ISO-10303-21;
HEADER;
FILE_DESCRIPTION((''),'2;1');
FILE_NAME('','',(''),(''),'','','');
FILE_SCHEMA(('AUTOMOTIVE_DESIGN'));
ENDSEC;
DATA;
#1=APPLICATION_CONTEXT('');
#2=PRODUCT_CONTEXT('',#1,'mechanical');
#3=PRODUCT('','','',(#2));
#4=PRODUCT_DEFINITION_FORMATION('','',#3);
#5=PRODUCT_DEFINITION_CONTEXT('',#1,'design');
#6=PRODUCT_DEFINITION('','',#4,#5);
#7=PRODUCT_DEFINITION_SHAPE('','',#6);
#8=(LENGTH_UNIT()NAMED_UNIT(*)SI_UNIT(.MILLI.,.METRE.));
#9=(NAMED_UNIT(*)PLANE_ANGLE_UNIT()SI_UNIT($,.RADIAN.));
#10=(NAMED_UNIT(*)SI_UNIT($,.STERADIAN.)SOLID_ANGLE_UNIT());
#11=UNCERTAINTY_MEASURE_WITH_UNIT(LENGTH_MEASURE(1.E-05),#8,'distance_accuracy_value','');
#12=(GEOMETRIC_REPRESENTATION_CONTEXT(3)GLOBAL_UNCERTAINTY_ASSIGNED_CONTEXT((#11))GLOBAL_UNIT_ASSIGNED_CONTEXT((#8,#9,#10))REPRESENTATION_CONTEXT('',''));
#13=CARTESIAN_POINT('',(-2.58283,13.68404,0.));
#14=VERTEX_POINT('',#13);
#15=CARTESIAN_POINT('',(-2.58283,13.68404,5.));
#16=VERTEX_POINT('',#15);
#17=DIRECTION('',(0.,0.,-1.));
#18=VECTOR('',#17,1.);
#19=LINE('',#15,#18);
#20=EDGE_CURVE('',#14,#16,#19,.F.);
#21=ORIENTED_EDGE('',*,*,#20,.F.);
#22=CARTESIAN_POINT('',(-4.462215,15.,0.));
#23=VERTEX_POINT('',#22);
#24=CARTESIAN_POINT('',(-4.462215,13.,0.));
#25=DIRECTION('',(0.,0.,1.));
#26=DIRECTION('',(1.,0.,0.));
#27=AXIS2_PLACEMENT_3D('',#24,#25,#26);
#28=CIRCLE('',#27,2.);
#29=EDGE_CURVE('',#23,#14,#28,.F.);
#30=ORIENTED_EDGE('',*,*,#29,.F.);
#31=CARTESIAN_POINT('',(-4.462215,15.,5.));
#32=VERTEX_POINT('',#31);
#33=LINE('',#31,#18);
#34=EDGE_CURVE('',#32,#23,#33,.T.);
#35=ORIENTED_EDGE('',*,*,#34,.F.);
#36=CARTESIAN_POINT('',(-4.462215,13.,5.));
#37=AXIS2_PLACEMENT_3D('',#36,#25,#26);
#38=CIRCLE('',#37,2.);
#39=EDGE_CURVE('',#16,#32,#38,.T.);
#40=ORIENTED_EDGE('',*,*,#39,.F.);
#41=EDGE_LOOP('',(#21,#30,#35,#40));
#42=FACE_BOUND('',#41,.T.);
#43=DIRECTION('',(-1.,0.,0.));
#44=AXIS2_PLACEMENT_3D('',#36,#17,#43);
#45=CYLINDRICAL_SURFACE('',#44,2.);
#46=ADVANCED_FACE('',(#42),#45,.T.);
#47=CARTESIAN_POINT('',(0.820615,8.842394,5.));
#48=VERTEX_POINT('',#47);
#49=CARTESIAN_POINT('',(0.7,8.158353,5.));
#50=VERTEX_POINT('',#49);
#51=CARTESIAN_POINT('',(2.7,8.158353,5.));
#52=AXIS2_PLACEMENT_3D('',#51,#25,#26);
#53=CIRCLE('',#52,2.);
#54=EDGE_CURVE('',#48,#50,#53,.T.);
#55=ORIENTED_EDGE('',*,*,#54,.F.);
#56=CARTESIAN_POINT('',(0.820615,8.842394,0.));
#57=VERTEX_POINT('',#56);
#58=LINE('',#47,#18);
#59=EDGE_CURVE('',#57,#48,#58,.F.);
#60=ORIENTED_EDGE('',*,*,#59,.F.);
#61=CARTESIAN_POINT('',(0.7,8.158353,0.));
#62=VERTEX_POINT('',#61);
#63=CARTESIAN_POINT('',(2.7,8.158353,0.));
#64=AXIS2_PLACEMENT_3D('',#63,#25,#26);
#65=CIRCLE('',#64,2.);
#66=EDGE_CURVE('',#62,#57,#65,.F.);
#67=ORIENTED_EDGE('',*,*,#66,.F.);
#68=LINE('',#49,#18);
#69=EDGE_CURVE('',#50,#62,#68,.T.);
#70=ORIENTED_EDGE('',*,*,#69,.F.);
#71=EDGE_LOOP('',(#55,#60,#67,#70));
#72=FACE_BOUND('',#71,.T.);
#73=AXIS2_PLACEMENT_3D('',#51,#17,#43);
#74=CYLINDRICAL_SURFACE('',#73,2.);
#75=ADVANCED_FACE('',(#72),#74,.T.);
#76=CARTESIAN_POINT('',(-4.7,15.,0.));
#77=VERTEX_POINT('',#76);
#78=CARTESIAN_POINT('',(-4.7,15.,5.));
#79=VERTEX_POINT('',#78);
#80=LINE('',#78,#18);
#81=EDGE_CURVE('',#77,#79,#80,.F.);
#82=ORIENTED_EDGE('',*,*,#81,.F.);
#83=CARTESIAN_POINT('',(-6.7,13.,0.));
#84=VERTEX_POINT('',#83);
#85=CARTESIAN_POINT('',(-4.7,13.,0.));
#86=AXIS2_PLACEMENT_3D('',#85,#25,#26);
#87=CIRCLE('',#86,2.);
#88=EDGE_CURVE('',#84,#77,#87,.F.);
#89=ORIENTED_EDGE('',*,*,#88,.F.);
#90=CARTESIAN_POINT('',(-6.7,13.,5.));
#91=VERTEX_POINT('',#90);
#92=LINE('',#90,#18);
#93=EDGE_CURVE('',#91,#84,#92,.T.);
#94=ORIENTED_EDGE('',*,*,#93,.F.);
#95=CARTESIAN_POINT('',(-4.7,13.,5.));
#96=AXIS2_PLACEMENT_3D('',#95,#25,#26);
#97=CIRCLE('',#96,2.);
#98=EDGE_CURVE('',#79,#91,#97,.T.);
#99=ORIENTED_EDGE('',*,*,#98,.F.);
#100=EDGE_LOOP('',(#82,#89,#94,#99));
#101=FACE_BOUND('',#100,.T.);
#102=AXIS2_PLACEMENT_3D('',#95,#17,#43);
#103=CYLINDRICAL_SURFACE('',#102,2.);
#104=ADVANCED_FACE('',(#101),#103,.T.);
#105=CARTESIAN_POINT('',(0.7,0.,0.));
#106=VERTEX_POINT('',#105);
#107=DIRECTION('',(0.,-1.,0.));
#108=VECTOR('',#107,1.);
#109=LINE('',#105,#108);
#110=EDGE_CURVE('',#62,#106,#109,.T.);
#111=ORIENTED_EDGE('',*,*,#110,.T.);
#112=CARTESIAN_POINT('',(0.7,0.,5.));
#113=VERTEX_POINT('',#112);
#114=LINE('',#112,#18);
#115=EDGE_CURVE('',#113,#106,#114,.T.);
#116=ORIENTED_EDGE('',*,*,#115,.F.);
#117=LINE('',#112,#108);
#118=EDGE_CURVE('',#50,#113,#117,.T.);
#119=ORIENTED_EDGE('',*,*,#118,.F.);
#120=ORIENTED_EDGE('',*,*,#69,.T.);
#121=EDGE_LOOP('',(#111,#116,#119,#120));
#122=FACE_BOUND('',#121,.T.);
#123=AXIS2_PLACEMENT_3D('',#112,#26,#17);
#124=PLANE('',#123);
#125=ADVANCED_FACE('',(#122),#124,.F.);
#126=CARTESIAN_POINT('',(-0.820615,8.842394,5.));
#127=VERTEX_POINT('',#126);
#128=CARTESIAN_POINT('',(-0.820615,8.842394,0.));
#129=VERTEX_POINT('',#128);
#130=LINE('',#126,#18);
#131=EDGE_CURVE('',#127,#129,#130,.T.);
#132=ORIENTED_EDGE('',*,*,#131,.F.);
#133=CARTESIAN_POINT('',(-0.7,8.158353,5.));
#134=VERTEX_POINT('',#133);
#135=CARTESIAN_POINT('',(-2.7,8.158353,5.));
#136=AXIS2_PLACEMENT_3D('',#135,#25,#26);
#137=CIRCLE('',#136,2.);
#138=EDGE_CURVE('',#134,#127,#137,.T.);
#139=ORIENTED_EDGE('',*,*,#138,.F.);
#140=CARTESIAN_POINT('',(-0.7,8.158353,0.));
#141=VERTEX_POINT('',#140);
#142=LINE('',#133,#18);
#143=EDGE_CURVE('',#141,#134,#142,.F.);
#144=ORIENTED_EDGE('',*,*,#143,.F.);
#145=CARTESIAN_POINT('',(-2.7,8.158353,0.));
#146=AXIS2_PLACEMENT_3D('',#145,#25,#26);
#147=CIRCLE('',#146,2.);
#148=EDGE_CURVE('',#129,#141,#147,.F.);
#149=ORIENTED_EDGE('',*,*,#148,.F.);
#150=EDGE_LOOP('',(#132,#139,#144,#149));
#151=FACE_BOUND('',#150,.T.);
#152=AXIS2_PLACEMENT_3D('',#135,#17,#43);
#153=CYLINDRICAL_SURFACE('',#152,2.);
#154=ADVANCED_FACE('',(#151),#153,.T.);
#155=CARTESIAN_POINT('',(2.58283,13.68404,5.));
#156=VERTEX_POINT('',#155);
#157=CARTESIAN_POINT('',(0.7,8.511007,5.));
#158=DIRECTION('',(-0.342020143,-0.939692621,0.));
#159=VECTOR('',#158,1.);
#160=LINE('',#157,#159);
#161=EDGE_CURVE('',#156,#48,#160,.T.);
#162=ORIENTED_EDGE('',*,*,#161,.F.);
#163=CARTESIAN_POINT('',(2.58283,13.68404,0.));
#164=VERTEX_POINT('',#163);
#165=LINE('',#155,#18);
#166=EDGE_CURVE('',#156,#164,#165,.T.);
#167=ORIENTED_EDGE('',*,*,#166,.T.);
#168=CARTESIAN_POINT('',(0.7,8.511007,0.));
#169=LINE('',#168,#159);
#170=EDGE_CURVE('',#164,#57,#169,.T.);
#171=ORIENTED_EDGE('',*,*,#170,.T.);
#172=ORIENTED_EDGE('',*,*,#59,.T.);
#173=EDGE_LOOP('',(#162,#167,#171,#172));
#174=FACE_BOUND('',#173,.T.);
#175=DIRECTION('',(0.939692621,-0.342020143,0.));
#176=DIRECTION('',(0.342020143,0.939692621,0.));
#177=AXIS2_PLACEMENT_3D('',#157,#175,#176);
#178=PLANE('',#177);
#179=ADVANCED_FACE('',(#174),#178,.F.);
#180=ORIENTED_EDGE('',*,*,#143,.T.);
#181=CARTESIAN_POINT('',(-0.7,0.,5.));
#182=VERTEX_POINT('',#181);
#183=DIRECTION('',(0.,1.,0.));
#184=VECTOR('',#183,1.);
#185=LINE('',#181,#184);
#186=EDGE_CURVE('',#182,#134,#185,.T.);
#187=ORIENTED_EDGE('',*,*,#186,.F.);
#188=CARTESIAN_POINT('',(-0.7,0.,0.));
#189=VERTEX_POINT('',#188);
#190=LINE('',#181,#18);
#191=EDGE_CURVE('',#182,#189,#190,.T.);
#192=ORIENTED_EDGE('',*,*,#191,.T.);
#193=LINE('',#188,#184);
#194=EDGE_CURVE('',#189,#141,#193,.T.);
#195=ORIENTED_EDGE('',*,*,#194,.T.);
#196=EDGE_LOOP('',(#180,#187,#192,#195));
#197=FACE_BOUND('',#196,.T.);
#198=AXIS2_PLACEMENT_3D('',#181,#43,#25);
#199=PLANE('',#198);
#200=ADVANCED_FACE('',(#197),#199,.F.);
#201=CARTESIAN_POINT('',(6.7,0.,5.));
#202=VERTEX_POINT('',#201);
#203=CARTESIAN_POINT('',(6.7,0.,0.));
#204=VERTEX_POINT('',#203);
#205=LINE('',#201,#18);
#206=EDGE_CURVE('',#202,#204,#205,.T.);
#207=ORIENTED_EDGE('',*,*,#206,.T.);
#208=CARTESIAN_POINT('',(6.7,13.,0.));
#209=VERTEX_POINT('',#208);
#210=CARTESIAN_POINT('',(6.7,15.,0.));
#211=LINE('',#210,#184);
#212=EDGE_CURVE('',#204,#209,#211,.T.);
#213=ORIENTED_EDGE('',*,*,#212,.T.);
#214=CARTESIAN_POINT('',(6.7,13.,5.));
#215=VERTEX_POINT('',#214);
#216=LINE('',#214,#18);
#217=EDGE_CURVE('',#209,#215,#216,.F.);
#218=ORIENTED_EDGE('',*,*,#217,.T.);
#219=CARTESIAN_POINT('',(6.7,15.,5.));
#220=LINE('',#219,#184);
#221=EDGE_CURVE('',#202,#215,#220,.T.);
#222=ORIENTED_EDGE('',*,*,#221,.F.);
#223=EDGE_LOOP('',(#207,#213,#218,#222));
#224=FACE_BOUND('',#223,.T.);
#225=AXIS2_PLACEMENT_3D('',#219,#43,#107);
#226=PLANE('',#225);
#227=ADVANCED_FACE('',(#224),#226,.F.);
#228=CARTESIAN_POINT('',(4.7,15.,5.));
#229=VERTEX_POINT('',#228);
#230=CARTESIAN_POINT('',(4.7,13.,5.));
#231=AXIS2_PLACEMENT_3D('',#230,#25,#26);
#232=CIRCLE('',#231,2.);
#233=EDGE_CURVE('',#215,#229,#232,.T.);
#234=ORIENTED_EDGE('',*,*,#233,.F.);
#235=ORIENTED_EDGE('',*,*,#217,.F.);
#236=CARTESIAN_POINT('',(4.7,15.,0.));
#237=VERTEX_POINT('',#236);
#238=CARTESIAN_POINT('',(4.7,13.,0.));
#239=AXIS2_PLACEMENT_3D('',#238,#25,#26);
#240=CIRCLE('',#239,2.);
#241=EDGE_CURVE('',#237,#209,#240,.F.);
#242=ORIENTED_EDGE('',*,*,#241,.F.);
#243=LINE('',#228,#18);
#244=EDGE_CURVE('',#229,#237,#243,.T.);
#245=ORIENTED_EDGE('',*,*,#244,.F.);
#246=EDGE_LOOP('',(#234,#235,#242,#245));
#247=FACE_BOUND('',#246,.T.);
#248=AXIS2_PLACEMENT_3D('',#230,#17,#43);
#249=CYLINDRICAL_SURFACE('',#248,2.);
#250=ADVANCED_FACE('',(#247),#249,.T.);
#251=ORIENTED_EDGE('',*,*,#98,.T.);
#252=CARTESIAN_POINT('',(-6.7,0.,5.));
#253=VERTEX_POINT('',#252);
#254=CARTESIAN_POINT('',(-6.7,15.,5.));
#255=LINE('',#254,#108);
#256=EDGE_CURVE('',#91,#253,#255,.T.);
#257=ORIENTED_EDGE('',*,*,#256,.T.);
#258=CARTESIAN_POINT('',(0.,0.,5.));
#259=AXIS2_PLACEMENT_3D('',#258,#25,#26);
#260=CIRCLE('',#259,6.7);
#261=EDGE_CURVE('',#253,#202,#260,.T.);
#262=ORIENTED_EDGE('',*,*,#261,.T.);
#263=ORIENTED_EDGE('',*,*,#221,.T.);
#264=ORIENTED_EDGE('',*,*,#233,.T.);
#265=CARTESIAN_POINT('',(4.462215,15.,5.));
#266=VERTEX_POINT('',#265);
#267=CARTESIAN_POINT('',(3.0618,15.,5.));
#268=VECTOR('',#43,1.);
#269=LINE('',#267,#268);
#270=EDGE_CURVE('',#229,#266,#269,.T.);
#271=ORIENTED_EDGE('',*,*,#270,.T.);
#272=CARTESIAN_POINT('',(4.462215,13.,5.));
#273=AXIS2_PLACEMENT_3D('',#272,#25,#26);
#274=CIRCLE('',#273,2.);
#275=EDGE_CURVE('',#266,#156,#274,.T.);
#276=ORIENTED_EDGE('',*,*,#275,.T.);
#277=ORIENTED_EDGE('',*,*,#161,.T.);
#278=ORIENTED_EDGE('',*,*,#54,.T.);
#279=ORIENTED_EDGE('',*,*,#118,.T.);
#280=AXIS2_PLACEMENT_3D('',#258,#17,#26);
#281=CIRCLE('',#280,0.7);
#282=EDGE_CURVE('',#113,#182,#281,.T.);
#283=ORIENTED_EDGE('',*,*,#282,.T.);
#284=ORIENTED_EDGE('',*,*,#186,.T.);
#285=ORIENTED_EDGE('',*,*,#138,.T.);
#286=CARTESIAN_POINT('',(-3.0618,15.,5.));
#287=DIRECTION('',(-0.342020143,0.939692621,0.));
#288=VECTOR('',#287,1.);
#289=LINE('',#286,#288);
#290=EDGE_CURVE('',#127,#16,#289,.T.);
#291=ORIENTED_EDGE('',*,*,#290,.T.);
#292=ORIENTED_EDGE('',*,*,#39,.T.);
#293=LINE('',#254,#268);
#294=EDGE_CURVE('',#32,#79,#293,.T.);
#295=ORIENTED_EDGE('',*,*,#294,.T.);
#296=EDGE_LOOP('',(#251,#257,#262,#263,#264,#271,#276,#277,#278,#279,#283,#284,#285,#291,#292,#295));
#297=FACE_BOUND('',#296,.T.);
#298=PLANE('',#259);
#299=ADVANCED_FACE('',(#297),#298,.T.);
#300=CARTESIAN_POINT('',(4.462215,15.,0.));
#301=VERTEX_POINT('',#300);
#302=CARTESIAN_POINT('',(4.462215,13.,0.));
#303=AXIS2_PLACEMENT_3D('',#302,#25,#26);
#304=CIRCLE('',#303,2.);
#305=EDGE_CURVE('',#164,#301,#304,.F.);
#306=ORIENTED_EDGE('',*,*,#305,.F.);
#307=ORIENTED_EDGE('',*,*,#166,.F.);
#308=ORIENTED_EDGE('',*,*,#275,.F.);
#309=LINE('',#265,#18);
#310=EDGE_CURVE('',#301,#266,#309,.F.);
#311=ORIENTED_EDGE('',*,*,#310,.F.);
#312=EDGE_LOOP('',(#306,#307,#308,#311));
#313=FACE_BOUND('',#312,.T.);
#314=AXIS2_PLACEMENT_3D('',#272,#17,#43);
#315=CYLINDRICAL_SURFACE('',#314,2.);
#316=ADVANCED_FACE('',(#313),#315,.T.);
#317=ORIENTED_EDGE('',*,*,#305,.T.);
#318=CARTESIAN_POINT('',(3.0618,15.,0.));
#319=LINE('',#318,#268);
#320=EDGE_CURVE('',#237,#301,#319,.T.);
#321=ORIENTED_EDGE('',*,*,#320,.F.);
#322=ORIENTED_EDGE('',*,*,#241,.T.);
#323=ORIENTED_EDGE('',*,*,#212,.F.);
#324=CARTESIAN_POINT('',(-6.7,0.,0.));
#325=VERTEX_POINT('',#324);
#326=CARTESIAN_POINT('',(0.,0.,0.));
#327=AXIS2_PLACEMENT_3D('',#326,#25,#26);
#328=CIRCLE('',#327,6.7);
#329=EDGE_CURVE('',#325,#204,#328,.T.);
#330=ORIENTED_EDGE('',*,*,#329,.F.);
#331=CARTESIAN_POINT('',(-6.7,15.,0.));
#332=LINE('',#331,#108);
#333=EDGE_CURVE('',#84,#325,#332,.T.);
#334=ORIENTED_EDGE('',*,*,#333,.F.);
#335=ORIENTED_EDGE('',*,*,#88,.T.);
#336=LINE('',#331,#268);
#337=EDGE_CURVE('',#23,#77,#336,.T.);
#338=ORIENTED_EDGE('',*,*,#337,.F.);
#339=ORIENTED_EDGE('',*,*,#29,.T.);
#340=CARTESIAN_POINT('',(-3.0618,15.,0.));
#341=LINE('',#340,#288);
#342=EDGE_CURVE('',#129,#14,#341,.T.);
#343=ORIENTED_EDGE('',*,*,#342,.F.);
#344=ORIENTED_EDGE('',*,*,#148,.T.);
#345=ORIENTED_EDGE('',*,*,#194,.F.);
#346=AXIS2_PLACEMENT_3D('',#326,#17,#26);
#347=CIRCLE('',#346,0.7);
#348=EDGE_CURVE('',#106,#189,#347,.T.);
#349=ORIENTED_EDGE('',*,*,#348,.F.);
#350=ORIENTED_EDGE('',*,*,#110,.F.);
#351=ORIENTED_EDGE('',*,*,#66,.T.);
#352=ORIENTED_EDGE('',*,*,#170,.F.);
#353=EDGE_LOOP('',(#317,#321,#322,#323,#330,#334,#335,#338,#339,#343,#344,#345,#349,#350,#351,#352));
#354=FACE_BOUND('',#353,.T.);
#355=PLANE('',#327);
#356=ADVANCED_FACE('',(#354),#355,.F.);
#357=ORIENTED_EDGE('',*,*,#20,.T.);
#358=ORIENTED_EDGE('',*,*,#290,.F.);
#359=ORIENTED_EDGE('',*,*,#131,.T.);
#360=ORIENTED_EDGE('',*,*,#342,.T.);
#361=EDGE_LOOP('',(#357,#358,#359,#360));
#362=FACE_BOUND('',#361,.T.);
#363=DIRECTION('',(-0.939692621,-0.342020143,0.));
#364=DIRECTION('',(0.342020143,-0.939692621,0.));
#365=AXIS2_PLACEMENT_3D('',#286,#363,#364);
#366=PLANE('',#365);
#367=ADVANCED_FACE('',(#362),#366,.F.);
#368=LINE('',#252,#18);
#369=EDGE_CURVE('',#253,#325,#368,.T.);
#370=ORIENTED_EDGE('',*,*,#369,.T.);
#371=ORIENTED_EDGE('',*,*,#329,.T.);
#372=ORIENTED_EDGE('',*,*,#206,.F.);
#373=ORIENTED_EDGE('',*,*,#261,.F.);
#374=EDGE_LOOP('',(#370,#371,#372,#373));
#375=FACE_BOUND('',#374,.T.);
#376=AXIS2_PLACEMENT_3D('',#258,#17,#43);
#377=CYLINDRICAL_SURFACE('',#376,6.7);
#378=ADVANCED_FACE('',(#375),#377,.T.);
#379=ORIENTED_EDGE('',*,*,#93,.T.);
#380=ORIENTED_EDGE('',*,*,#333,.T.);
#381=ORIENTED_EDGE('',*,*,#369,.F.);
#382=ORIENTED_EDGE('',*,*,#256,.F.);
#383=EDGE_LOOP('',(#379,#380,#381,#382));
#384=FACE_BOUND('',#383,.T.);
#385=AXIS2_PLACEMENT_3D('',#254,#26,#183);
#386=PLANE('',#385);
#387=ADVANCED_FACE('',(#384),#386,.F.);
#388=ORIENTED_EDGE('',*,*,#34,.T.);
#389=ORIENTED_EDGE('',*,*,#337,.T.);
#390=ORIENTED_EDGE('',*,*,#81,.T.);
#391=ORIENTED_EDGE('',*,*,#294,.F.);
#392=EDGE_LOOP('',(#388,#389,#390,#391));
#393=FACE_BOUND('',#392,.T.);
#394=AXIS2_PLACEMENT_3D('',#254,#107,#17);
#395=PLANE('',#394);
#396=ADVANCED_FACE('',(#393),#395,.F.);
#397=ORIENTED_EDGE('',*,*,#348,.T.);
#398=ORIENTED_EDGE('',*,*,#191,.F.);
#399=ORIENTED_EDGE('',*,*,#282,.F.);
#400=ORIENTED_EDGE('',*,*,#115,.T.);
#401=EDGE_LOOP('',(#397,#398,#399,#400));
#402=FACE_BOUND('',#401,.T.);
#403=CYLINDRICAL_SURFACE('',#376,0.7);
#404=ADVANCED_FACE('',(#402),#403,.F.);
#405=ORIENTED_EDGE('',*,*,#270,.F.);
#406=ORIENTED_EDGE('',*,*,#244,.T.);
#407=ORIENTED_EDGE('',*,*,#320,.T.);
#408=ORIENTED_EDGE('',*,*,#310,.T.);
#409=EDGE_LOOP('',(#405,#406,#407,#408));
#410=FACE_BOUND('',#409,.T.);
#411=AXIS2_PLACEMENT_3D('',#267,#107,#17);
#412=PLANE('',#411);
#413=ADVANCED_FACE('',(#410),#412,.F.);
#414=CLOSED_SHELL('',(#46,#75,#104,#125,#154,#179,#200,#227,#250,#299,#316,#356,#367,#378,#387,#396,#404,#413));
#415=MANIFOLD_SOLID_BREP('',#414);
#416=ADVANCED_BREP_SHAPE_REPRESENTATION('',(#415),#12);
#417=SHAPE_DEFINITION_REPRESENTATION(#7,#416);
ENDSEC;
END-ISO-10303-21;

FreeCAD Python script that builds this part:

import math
import FreeCAD as App
import Part
import Sketcher
Q = App.Units.Quantity


def edges_at(feature, points):
    """Names of the edges that pass closest to the given points."""
    edges = feature.Shape.Edges
    near = lambda p: min(range(len(edges)), key=lambda i: edges[i].distToShape(Part.Vertex(*p))[0])
    return sorted({f"Edge{near(p) + 1}" for p in points})

doc = App.newDocument("Part")
params = doc.addObject("Spreadsheet::Sheet", "Params")
for row, (alias, value) in enumerate([
    ("sketch1_radius", "6.7 mm"),
    ("sketch1_radius2", "0.7 mm"),
    ("sketch1_height", "15 mm"),
    ("pad1_length", "5 mm"),
    ("fillet_radius", "2 mm"),
], start=1):
    params.set(f"A{row}", alias)
    params.set(f"B{row}", "=" + value)
    params.setAlias(f"B{row}", alias)

body = doc.addObject("PartDesign::Body", "Body")

# Sketch on XY plane
sketch1 = doc.addObject("Sketcher::SketchObject", "Sketch")
body.addObject(sketch1)
sketch1.AttachmentSupport = (doc.XY_Plane, [""])
sketch1.MapMode = "FlatFace"
sketch1.addGeometry([
    Part.LineSegment(App.Vector(-0.7, 0, 0), App.Vector(-0.7, 8.511007, 0)),  # 0
    Part.LineSegment(App.Vector(-0.7, 8.511007, 0), App.Vector(-3.0618, 15, 0)),  # 1
    Part.LineSegment(App.Vector(-3.0618, 15, 0), App.Vector(-6.7, 15, 0)),  # 2
    Part.LineSegment(App.Vector(-6.7, 15, 0), App.Vector(-6.7, 0, 0)),  # 3
    Part.ArcOfCircle(Part.Circle(App.Vector(0, 0, 0), App.Vector(0, 0, 1), 6.7), math.radians(180), math.radians(360)),  # 4
    Part.LineSegment(App.Vector(6.7, 0, 0), App.Vector(6.7, 15, 0)),  # 5
    Part.LineSegment(App.Vector(6.7, 15, 0), App.Vector(3.0618, 15, 0)),  # 6
    Part.LineSegment(App.Vector(3.0618, 15, 0), App.Vector(0.7, 8.511007, 0)),  # 7
    Part.LineSegment(App.Vector(0.7, 8.511007, 0), App.Vector(0.7, 0, 0)),  # 8
    Part.ArcOfCircle(Part.Circle(App.Vector(0, 0, 0), App.Vector(0, 0, 1), 0.7), math.radians(180), math.radians(360)),  # 9
], False)
sketch1.addConstraint([
    Sketcher.Constraint("Coincident", 0, 2, 1, 1),
    Sketcher.Constraint("Coincident", 1, 2, 2, 1),
    Sketcher.Constraint("Coincident", 2, 2, 3, 1),
    Sketcher.Constraint("Tangent", 3, 2, 4, 1),
    Sketcher.Constraint("Tangent", 4, 2, 5, 1),
    Sketcher.Constraint("Coincident", 5, 2, 6, 1),
    Sketcher.Constraint("Coincident", 6, 2, 7, 1),
    Sketcher.Constraint("Coincident", 7, 2, 8, 1),
    Sketcher.Constraint("Tangent", 8, 2, 9, 2),
    Sketcher.Constraint("Tangent", 9, 1, 0, 1),
    Sketcher.Constraint("Vertical", 0),
    Sketcher.Constraint("Horizontal", 2),
    Sketcher.Constraint("Vertical", 3),
    Sketcher.Constraint("Vertical", 5),
    Sketcher.Constraint("Horizontal", 6),
    Sketcher.Constraint("Vertical", 8),
    Sketcher.Constraint("Coincident", 4, 3, -1, 1),
    Sketcher.Constraint("Coincident", 9, 3, -1, 1),
    Sketcher.Constraint("Symmetric", 1, 2, 6, 2, -2),
    Sketcher.Constraint("Horizontal", 0, 2, 7, 2),
    Sketcher.Constraint("Radius", 4, Q("6.7 mm")),
    Sketcher.Constraint("Radius", 9, Q("0.7 mm")),
    Sketcher.Constraint("DistanceY", 3, 2, 3, 1, Q("15 mm")),
    Sketcher.Constraint("Angle", 1, Q("110 deg")),
    Sketcher.Constraint("DistanceX", 2, 2, 2, 1, Q("3.6382 mm")),
])
sketch1.setExpression("Constraints[20]", "Params.sketch1_radius")
sketch1.setExpression("Constraints[21]", "Params.sketch1_radius2")
sketch1.setExpression("Constraints[22]", "Params.sketch1_height")
pad1 = doc.addObject("PartDesign::Pad", "Pad")
body.addObject(pad1)
pad1.Profile = sketch1
pad1.setExpression("Length", "Params.pad1_length")
doc.recompute()

fillet = doc.addObject("PartDesign::Fillet", "Fillet")
body.addObject(fillet)
fillet.Base = (pad1, edges_at(pad1, [
    (3.062, 15, 2.5),
    (6.7, 15, 2.5),
    (-6.7, 15, 2.5),
    (-3.062, 15, 2.5),
    (-0.7, 8.511, 2.5),
    (0.7, 8.511, 2.5),
]))
fillet.setExpression("Radius", "Params.fillet_radius")

doc.recompute()
